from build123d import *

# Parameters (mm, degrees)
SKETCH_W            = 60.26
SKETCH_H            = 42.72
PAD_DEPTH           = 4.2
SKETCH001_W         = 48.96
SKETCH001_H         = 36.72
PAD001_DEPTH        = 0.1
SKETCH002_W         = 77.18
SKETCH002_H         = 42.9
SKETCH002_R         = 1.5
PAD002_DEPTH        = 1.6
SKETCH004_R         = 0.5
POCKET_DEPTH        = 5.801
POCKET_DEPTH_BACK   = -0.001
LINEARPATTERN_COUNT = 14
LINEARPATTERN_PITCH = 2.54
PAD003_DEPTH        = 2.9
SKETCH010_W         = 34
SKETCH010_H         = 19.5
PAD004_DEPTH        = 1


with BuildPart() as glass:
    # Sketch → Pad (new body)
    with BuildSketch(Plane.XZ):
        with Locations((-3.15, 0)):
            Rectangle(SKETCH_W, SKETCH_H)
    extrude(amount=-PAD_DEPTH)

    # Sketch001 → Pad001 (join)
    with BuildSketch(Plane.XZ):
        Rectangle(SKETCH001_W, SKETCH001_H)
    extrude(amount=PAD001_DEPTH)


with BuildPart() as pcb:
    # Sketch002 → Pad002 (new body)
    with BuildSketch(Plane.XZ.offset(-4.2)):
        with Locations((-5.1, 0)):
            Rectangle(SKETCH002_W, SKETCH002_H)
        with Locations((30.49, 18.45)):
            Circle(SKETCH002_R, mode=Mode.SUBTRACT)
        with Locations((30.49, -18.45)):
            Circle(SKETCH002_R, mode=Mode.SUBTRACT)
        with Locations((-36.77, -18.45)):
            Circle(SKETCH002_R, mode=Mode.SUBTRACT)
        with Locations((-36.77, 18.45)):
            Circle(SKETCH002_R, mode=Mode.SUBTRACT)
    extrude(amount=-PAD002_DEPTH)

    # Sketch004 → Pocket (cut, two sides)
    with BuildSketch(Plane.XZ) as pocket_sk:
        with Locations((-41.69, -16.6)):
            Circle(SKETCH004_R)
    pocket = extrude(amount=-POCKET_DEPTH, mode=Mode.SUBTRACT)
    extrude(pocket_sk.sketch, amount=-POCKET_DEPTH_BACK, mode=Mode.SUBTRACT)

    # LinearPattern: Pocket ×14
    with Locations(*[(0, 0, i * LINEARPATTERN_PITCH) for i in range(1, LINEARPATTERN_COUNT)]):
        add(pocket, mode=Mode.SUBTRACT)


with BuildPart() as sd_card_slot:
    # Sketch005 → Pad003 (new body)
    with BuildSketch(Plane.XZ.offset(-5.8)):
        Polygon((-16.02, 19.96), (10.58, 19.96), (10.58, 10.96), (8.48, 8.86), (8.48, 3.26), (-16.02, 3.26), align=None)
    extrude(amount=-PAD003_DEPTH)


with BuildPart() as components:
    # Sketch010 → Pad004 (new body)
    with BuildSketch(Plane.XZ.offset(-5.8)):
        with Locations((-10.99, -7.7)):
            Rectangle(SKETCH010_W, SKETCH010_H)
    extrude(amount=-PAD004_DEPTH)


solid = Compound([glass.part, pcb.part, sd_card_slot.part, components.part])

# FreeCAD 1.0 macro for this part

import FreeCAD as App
import Part
import Sketcher
from FreeCAD import Vector
Q = App.Units.Quantity


def add_polygon(sketch, points):
    """Adds a closed chain of lines whose ends are joined by coincident constraints."""
    first, n = sketch.GeometryCount, len(points)
    for a, b in zip(points, points[1:] + points[:1]):
        sketch.addGeometry(Part.LineSegment(App.Vector(*a, 0), App.Vector(*b, 0)), False)
    for i in range(n):
        sketch.addConstraint(Sketcher.Constraint("Coincident", first + i, 2, first + (i + 1) % n, 1))

doc = App.newDocument("Part")
body = doc.addObject("PartDesign::Body", "Body")

# Sketch on XZ plane
sketch1 = doc.addObject("Sketcher::SketchObject", "Sketch")
body.addObject(sketch1)
sketch1.AttachmentSupport = (doc.XZ_Plane, [""])
sketch1.MapMode = "FlatFace"
add_polygon(sketch1, [(-33, 21), (-33, -21), (27, -21), (27, 21)])  # lines 0-3
sketch1.addConstraint(Sketcher.Constraint("Vertical", 0))
sketch1.addConstraint(Sketcher.Constraint("Horizontal", 1))
sketch1.addConstraint(Sketcher.Constraint("Vertical", 2))
sketch1.addConstraint(Sketcher.Constraint("Horizontal", 3))
sketch1.addConstraint(Sketcher.Constraint("DistanceX", 1, 1, 1, 2, Q("60.26 mm")))
sketch1.addConstraint(Sketcher.Constraint("DistanceY", 0, 2, 0, 1, Q("42.72 mm")))
sketch1.addConstraint(Sketcher.Constraint("DistanceX", 0, 2, -1, 1, Q("33.28 mm")))
sketch1.addConstraint(Sketcher.Constraint("DistanceY", 0, 2, -1, 1, Q("21.36 mm")))
pad1 = doc.addObject("PartDesign::Pad", "Pad")
body.addObject(pad1)
pad1.Profile = sketch1
pad1.Length = 4.2
pad1.Reversed = True

# Sketch on XZ plane
sketch2 = doc.addObject("Sketcher::SketchObject", "Sketch001")
body.addObject(sketch2)
sketch2.AttachmentSupport = (doc.XZ_Plane, [""])
sketch2.MapMode = "FlatFace"
add_polygon(sketch2, [(-24, 18), (-24, -18), (24, -18), (24, 18)])  # lines 0-3
sketch2.addConstraint(Sketcher.Constraint("Vertical", 0))
sketch2.addConstraint(Sketcher.Constraint("Horizontal", 1))
sketch2.addConstraint(Sketcher.Constraint("Vertical", 2))
sketch2.addConstraint(Sketcher.Constraint("Horizontal", 3))
sketch2.addConstraint(Sketcher.Constraint("Symmetric", 0, 2, 2, 2, -1, 1))
sketch2.addConstraint(Sketcher.Constraint("DistanceX", 1, 1, 1, 2, Q("48.96 mm")))
sketch2.addConstraint(Sketcher.Constraint("DistanceY", 0, 2, 0, 1, Q("36.72 mm")))
pad2 = doc.addObject("PartDesign::Pad", "Pad001")
body.addObject(pad2)
pad2.Profile = sketch2
pad2.Length = 0.1
body2 = doc.addObject("PartDesign::Body", "Body001")

# Sketch on XZ plane
sketch3 = doc.addObject("Sketcher::SketchObject", "Sketch002")
body2.addObject(sketch3)
sketch3.AttachmentSupport = (doc.getObject("XZ_Plane001"), [""])
sketch3.MapMode = "FlatFace"
sketch3.AttachmentOffset = App.Placement(Vector(0, 0, -4.2), App.Rotation())
add_polygon(sketch3, [(-43.7, 21.4), (-43.7, -21.4), (33.5, -21.4), (33.5, 21.4)])  # lines 0-3
sketch3.addGeometry(Part.Circle(Vector(-36.8, -18.4, 0), Vector(0, 0, 1), 1.5), False)  # 4
sketch3.addGeometry(Part.Circle(Vector(30.5, -18.4, 0), Vector(0, 0, 1), 1.5), False)  # 5
sketch3.addGeometry(Part.Circle(Vector(-36.8, 18.4, 0), Vector(0, 0, 1), 1.5), False)  # 6
sketch3.addGeometry(Part.Circle(Vector(30.5, 18.4, 0), Vector(0, 0, 1), 1.5), False)  # 7
sketch3.addConstraint(Sketcher.Constraint("Vertical", 0))
sketch3.addConstraint(Sketcher.Constraint("Horizontal", 1))
sketch3.addConstraint(Sketcher.Constraint("Vertical", 2))
sketch3.addConstraint(Sketcher.Constraint("Horizontal", 3))
sketch3.addConstraint(Sketcher.Constraint("Equal", 4, 5))
sketch3.addConstraint(Sketcher.Constraint("Equal", 5, 6))
sketch3.addConstraint(Sketcher.Constraint("Equal", 6, 7))
sketch3.addConstraint(Sketcher.Constraint("Symmetric", 4, 3, 6, 3, -1))
sketch3.addConstraint(Sketcher.Constraint("Symmetric", 5, 3, 7, 3, -1))
sketch3.addConstraint(Sketcher.Constraint("Horizontal", 4, 3, 5, 3))
sketch3.addConstraint(Sketcher.Constraint("Diameter", 4, Q("3 mm")))
sketch3.addConstraint(Sketcher.Constraint("DistanceY", 0, 2, 0, 1, Q("42.9 mm")))
sketch3.addConstraint(Sketcher.Constraint("DistanceY", 0, 2, 4, 3, Q("3 mm")))
sketch3.addConstraint(Sketcher.Constraint("DistanceX", 5, 3, 1, 2, Q("3 mm")))
sketch3.addConstraint(Sketcher.Constraint("DistanceY", 7, 3, 2, 2, Q("3 mm")))
sketch3.addConstraint(Sketcher.Constraint("DistanceX", 1, 1, 1, 2, Q("77.18 mm")))
sketch3.addConstraint(Sketcher.Constraint("DistanceX", 4, 3, -1, 1, Q("36.77 mm")))
sketch3.addConstraint(Sketcher.Constraint("DistanceX", -1, 1, 5, 3, Q("30.49 mm")))
pad3 = doc.addObject("PartDesign::Pad", "Pad002")
body2.addObject(pad3)
pad3.Profile = sketch3
pad3.Length = 1.6
pad3.Reversed = True

# Sketch on XZ plane
sketch4 = doc.addObject("Sketcher::SketchObject", "Sketch003")
body2.addObject(sketch4)
sketch4.AttachmentSupport = (doc.getObject("XZ_Plane001"), [""])
sketch4.MapMode = "FlatFace"
sketch4.addGeometry(Part.Circle(Vector(-41.7, -16.6, 0), Vector(0, 0, 1), 0.5), False)
sketch4.addConstraint(Sketcher.Constraint("Diameter", 0, Q("1 mm")))
sketch4.addConstraint(Sketcher.Constraint("DistanceY", 0, 3, -1, 1, Q("16.6 mm")))
sketch4.addConstraint(Sketcher.Constraint("DistanceX", 0, 3, -1, 1, Q("41.69 mm")))
pocket1 = doc.addObject("PartDesign::Pocket", "Pocket")
body2.addObject(pocket1)
pocket1.Profile = sketch4
pocket1.Type = "ThroughAll"
pocket1.Midplane = True
doc.recompute()

linearpattern = doc.addObject("PartDesign::LinearPattern", "LinearPattern")
body2.addObject(linearpattern)
linearpattern.Originals = [pocket1]
linearpattern.Direction = (doc.getObject("Z_Axis001"), [""])
linearpattern.Mode = "offset"
linearpattern.Offset = 2.54
linearpattern.Occurrences = 14
body2.Tip = linearpattern
body3 = doc.addObject("PartDesign::Body", "Body002")

# Sketch on XZ plane
sketch5 = doc.addObject("Sketcher::SketchObject", "Sketch004")
body3.addObject(sketch5)
sketch5.AttachmentSupport = (doc.getObject("XZ_Plane002"), [""])
sketch5.MapMode = "FlatFace"
sketch5.AttachmentOffset = App.Placement(Vector(0, 0, -5.8), App.Rotation())
add_polygon(sketch5, [(10.6, 20), (-16, 20), (-16, 3.3), (8.5, 3.3), (8.5, 8.9), (10.6, 11)])  # lines 0-5
sketch5.addConstraint(Sketcher.Constraint("Horizontal", 0))
sketch5.addConstraint(Sketcher.Constraint("Vertical", 1))
sketch5.addConstraint(Sketcher.Constraint("Horizontal", 2))
sketch5.addConstraint(Sketcher.Constraint("Vertical", 3))
sketch5.addConstraint(Sketcher.Constraint("Vertical", 5))
sketch5.addConstraint(Sketcher.Constraint("DistanceY", 5, 1, 5, 2, Q("9 mm")))
sketch5.addConstraint(Sketcher.Constraint("Angle", 4, Q("45 deg")))
sketch5.addConstraint(Sketcher.Constraint("DistanceX", 0, 2, 0, 1, Q("26.6 mm")))
sketch5.addConstraint(Sketcher.Constraint("DistanceX", 2, 1, 2, 2, Q("24.5 mm")))
sketch5.addConstraint(Sketcher.Constraint("DistanceY", 1, 2, 1, 1, Q("16.7 mm")))
sketch5.addConstraint(Sketcher.Constraint("DistanceX", 0, 2, -1, 1, Q("16.02 mm")))
sketch5.addConstraint(Sketcher.Constraint("DistanceY", -1, 1, 0, 2, Q("19.96 mm")))
pad4 = doc.addObject("PartDesign::Pad", "Pad003")
body3.addObject(pad4)
pad4.Profile = sketch5
pad4.Length = 2.9
pad4.Reversed = True
body4 = doc.addObject("PartDesign::Body", "Body003")

# Sketch on XZ plane
sketch6 = doc.addObject("Sketcher::SketchObject", "Sketch005")
body4.addObject(sketch6)
sketch6.AttachmentSupport = (doc.getObject("XZ_Plane003"), [""])
sketch6.MapMode = "FlatFace"
sketch6.AttachmentOffset = App.Placement(Vector(0, 0, -5.8), App.Rotation())
add_polygon(sketch6, [(-28, 2), (-28, -17), (6, -17), (6, 2)])  # lines 0-3
sketch6.addConstraint(Sketcher.Constraint("Vertical", 0))
sketch6.addConstraint(Sketcher.Constraint("Horizontal", 1))
sketch6.addConstraint(Sketcher.Constraint("Vertical", 2))
sketch6.addConstraint(Sketcher.Constraint("Horizontal", 3))
sketch6.addConstraint(Sketcher.Constraint("DistanceX", 1, 1, 1, 2, Q("34 mm")))
sketch6.addConstraint(Sketcher.Constraint("DistanceY", 0, 2, 0, 1, Q("19.5 mm")))
sketch6.addConstraint(Sketcher.Constraint("DistanceX", 0, 2, -1, 1, Q("27.99 mm")))
sketch6.addConstraint(Sketcher.Constraint("DistanceY", 0, 2, -1, 1, Q("17.45 mm")))
pad5 = doc.addObject("PartDesign::Pad", "Pad004")
body4.addObject(pad5)
pad5.Profile = sketch6
pad5.Length = 1
pad5.Reversed = True

doc.recompute()
